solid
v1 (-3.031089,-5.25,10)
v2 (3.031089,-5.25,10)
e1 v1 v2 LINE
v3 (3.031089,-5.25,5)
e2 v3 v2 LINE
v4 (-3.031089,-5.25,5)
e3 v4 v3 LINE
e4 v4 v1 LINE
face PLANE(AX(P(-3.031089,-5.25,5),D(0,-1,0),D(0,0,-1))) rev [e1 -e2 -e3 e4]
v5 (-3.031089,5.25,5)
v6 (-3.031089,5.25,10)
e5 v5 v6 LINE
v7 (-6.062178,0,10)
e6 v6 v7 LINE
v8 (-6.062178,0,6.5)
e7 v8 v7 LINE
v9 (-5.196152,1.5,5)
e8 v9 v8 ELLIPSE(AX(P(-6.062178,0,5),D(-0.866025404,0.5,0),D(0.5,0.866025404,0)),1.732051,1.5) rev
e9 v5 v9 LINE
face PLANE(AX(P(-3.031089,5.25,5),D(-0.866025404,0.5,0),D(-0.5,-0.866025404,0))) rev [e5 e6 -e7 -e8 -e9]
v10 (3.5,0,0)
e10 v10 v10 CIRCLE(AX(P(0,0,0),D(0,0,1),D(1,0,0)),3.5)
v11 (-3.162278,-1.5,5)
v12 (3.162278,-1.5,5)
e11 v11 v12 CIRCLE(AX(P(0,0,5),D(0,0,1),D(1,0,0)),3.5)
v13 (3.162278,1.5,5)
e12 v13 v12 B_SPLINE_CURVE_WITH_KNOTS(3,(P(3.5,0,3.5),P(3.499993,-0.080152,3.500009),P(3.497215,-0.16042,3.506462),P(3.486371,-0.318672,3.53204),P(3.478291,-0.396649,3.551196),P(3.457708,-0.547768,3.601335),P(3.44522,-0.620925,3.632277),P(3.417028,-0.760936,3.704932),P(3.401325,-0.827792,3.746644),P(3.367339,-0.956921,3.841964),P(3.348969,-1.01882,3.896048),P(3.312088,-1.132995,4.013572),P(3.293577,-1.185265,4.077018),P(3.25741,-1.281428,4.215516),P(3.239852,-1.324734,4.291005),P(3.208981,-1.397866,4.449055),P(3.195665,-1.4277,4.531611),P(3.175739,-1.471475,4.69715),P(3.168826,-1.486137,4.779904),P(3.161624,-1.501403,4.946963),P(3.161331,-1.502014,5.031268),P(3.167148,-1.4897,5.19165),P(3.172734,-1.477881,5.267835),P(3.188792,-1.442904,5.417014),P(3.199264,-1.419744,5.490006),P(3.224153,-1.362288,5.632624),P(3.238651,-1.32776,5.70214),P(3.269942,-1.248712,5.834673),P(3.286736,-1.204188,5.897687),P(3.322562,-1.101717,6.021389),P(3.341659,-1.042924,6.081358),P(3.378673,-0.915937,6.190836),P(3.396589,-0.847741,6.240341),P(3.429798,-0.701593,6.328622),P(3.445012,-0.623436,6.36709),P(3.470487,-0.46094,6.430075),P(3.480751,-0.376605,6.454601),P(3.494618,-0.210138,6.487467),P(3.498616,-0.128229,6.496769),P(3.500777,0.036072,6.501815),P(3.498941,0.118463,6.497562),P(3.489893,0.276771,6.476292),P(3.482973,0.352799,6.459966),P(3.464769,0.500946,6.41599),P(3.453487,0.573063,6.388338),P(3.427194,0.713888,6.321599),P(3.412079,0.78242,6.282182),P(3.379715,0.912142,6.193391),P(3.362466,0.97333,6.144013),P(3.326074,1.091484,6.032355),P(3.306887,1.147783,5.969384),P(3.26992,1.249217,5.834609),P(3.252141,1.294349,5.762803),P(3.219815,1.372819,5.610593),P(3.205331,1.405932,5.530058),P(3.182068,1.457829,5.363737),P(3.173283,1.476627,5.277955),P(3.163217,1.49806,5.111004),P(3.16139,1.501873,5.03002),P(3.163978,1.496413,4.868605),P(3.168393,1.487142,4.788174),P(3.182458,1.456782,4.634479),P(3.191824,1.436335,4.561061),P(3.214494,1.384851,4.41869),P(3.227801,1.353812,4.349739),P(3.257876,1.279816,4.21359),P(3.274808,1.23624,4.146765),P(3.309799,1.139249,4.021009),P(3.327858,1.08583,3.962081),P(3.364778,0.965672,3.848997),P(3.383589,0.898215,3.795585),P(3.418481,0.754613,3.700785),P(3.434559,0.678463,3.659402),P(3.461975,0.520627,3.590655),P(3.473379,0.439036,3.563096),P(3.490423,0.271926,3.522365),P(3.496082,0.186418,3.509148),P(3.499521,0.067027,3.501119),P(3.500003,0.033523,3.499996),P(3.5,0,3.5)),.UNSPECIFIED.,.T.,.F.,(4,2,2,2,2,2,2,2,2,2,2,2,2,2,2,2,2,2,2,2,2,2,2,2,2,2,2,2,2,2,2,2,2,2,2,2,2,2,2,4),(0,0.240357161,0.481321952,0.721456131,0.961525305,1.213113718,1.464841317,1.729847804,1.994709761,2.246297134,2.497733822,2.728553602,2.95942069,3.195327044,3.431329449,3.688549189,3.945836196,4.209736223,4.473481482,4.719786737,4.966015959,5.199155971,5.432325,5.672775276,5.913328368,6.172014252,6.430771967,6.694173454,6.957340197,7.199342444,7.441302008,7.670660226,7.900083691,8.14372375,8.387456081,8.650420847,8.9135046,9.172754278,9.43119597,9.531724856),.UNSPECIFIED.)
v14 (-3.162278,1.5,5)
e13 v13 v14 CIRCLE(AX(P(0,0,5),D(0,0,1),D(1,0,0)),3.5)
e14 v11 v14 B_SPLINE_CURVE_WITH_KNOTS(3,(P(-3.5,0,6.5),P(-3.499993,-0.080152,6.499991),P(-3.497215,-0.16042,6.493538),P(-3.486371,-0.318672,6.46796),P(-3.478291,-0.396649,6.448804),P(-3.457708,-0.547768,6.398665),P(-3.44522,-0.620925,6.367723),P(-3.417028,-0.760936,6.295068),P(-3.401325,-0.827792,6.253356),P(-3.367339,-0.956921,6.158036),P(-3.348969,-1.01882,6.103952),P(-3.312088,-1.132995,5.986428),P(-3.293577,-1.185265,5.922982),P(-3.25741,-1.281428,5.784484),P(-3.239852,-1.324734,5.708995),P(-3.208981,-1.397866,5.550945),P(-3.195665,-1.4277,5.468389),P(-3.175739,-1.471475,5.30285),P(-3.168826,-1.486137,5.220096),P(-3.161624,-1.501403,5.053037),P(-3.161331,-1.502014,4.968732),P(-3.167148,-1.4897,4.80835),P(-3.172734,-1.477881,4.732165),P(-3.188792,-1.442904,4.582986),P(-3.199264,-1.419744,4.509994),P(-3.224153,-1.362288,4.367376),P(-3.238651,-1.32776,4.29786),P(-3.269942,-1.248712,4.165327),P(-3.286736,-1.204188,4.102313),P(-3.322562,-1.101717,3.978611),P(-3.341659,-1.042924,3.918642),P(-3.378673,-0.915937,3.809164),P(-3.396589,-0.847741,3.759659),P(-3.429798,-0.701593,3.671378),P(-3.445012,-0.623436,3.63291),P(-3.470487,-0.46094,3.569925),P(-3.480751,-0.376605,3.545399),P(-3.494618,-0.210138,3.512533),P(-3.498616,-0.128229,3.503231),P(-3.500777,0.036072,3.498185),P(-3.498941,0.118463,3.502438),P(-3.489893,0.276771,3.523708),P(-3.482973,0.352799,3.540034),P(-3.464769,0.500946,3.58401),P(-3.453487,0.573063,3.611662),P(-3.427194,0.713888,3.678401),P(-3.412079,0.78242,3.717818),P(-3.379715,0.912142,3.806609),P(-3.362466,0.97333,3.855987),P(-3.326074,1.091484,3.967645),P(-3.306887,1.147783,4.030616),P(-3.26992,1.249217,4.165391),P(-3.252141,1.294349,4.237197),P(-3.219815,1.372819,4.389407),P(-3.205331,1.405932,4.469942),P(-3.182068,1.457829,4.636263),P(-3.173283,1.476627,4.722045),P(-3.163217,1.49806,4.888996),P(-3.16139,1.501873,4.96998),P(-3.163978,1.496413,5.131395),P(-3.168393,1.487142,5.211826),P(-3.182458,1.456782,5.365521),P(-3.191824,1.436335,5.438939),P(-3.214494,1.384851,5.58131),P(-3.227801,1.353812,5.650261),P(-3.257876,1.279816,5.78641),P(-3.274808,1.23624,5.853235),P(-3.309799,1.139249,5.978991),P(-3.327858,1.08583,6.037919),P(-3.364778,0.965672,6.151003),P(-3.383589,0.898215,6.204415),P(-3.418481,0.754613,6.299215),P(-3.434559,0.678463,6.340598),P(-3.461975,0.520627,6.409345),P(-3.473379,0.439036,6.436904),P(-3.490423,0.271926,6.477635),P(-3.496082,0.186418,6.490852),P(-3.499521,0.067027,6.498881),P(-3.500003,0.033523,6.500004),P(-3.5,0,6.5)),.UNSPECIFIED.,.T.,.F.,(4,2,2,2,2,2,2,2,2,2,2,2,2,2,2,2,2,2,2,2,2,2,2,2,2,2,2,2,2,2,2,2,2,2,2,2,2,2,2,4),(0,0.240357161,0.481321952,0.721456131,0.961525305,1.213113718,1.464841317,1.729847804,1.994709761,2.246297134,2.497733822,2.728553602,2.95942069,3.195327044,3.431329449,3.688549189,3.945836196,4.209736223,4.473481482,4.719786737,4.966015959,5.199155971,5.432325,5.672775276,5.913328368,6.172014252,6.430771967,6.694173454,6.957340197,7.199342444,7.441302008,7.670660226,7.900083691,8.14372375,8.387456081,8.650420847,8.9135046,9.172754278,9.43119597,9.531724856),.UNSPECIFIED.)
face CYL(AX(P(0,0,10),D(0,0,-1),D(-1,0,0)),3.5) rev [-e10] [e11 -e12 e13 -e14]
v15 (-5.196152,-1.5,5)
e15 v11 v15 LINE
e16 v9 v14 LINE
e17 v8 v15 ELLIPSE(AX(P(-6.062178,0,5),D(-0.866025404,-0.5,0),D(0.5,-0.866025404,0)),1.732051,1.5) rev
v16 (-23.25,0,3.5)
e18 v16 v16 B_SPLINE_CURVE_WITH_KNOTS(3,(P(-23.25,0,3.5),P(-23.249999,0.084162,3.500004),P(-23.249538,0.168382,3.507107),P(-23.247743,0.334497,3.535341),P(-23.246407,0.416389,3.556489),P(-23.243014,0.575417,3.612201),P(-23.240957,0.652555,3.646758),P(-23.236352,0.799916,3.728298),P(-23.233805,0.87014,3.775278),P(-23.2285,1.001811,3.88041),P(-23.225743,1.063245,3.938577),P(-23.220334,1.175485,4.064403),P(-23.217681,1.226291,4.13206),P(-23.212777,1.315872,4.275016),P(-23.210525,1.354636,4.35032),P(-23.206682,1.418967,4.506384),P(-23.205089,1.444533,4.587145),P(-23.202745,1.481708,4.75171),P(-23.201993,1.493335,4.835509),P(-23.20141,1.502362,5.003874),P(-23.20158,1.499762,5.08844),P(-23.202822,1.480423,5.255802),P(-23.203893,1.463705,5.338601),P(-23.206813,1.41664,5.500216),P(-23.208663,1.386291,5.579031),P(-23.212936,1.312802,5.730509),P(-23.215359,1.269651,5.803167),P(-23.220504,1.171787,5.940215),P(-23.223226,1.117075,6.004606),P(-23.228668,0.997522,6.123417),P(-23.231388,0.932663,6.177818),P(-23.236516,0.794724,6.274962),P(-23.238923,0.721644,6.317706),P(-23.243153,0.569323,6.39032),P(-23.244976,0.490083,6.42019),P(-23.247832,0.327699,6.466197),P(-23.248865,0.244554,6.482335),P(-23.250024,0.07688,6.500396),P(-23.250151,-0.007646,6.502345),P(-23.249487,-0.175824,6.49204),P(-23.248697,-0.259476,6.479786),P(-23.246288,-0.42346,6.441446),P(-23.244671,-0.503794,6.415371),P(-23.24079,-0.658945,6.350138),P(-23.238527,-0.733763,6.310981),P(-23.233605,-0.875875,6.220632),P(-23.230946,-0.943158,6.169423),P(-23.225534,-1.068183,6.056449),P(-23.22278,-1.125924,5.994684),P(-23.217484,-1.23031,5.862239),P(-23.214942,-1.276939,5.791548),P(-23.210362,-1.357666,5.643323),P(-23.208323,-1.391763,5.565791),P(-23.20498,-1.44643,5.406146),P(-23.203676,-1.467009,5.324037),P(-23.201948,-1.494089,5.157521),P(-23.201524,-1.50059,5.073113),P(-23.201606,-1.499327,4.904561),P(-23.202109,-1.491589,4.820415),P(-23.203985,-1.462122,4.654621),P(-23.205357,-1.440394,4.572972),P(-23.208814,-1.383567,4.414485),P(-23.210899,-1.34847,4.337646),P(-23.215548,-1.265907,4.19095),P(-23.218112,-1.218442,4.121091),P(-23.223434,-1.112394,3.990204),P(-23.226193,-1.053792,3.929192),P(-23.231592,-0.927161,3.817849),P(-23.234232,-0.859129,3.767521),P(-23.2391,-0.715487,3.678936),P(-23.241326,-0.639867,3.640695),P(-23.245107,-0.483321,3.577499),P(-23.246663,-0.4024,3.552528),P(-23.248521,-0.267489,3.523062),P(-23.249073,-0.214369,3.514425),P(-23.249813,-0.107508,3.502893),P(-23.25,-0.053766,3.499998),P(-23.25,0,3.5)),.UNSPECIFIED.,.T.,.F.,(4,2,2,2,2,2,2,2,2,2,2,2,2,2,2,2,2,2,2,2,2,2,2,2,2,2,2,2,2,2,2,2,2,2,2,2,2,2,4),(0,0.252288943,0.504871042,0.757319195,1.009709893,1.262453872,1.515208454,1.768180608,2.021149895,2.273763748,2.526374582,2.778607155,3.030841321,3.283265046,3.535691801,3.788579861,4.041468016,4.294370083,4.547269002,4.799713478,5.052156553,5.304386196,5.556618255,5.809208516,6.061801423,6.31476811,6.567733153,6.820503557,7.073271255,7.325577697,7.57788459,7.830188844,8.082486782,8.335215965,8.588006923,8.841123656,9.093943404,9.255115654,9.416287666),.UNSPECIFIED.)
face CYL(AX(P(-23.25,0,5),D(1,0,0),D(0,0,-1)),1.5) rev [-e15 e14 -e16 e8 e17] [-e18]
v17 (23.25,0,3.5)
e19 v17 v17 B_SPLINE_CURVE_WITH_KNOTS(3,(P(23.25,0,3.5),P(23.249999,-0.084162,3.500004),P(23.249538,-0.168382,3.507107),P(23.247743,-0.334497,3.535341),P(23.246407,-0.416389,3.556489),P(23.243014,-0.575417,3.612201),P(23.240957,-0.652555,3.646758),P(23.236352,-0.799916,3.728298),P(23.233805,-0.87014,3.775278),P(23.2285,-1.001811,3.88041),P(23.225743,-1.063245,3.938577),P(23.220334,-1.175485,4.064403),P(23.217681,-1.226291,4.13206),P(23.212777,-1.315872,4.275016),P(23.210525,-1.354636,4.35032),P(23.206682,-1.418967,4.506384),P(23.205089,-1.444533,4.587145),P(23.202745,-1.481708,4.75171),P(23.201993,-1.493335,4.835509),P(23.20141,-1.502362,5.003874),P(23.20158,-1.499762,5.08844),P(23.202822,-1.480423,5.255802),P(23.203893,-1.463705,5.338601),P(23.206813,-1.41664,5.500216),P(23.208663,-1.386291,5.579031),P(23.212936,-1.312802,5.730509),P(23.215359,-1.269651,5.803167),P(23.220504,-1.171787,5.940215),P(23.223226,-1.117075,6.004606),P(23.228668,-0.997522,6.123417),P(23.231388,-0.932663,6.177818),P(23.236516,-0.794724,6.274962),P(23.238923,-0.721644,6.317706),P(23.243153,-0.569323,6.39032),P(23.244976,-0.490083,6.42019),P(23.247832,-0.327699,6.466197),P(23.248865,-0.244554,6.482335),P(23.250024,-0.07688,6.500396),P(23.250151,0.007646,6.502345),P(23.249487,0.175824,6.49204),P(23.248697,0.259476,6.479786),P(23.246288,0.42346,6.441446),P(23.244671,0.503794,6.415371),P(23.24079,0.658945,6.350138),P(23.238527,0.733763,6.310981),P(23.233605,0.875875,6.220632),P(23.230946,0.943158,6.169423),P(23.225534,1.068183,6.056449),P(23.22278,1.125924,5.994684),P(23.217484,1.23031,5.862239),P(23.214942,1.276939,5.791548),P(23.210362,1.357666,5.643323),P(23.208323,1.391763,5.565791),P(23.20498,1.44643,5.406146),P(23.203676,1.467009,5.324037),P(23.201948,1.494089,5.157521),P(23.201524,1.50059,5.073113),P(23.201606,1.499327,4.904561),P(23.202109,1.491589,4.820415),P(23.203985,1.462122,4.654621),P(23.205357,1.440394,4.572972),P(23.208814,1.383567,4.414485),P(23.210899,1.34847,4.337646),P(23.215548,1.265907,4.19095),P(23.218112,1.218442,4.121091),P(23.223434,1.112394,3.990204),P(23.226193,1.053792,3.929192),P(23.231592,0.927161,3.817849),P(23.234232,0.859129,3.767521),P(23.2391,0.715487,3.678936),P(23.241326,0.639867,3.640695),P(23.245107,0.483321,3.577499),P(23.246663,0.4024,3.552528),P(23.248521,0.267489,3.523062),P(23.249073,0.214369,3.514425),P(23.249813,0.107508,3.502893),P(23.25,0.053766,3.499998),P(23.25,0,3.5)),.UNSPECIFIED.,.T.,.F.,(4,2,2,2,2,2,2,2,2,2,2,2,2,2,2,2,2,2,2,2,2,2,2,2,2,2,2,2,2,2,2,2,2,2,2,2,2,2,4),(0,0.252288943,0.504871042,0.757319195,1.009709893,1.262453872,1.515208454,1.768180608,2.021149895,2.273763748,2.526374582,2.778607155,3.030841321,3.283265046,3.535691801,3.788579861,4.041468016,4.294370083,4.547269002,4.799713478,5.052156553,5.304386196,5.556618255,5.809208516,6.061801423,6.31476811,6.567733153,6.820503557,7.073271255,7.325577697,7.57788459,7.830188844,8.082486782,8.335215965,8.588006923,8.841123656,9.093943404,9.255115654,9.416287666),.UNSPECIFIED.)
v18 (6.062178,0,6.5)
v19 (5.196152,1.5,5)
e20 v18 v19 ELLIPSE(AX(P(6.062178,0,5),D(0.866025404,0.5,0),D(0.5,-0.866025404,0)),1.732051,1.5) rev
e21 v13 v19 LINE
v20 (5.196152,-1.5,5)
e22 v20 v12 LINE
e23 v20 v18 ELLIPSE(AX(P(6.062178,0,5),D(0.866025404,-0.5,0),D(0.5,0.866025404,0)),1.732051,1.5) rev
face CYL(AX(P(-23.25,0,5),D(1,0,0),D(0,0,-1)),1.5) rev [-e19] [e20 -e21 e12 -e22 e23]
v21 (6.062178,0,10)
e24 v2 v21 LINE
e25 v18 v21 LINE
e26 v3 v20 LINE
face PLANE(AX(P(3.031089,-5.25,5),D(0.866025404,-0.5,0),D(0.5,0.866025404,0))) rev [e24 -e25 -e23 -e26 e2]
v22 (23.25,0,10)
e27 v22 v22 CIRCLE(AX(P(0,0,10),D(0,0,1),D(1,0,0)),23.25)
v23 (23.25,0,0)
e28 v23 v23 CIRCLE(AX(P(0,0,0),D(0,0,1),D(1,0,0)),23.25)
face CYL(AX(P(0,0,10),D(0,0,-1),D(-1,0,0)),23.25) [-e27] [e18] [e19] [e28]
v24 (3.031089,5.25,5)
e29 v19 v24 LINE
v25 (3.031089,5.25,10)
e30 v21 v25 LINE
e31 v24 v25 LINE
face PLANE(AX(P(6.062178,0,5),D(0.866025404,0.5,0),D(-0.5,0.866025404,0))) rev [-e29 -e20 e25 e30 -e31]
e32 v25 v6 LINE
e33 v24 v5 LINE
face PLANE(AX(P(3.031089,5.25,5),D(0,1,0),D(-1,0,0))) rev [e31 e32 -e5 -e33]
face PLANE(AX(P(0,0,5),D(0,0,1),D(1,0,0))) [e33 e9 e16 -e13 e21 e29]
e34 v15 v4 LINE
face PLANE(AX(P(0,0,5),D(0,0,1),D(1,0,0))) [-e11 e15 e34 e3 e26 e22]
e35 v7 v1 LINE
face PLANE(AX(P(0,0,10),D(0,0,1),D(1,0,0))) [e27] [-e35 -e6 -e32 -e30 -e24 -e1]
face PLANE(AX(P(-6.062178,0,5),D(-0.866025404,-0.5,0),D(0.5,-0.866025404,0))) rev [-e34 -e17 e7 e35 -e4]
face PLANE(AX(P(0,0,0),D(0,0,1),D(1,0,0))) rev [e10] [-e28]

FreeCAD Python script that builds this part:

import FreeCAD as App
import Part
import Sketcher

V = App.Vector
Q = App.Units.Quantity


def add_polygon(sketch, points):
    """Adds a closed chain of lines whose ends are joined by coincident constraints."""
    first, n = sketch.GeometryCount, len(points)
    for a, b in zip(points, points[1:] + points[:1]):
        sketch.addGeometry(Part.LineSegment(App.Vector(*a, 0), App.Vector(*b, 0)), False)
    for i in range(n):
        sketch.addConstraint(Sketcher.Constraint("Coincident", first + i, 2, first + (i + 1) % n, 1))

doc = App.newDocument("Part")
body = doc.addObject("PartDesign::Body", "Body")

sketch1 = body.newObject("Sketcher::SketchObject", "Sketch")
sketch1.AttachmentSupport = (doc.getObject("XY_Plane"), [""])
sketch1.MapMode = "FlatFace"
sketch1.addGeometry(Part.Circle(V(0, 0, 0), V(0, 0, 1), 23.2), False)
sketch1.addGeometry(Part.Circle(V(0, 0, 0), V(0, 0, 1), 3.5), False)
sketch1.addConstraint(Sketcher.Constraint("Coincident", 0, 3, -1, 1))
sketch1.addConstraint(Sketcher.Constraint("Coincident", 1, 3, -1, 1))
sketch1.addConstraint(Sketcher.Constraint("Diameter", 1, 7.0))
sketch1.addConstraint(Sketcher.Constraint("Diameter", 0, 46.5))
pad1 = body.newObject("PartDesign::Pad", "Pad")
pad1.Profile = sketch1
pad1.Length = 10

sketch2 = body.newObject("Sketcher::SketchObject", "Sketch001")
sketch2.AttachmentSupport = (doc.getObject("YZ_Plane"), [""])
sketch2.MapMode = "FlatFace"
sketch2.addGeometry(Part.Circle(V(0, 5, 0), V(0, 0, 1), 1.5), False)
sketch2.addConstraint(Sketcher.Constraint("PointOnObject", 0, 3, -2))
sketch2.addConstraint(Sketcher.Constraint("Diameter", 0, 3.0))
sketch2.addConstraint(Sketcher.Constraint("DistanceY", -1, 1, 0, 3, 5.0))
pocket1 = body.newObject("PartDesign::Pocket", "Pocket")
pocket1.Profile = sketch2
pocket1.Type = "ThroughAll"
pocket1.Midplane = True

sketch3 = body.newObject("Sketcher::SketchObject", "Sketch002")
sketch3.AttachmentSupport = (doc.getObject("XY_Plane"), [""])
sketch3.MapMode = "FlatFace"
sketch3.AttachmentOffset = App.Placement(V(0, 0, 10), App.Rotation())
add_polygon(sketch3, [(3, 5), (-3, 5), (-6, 0), (-3, -5), (3, -5), (6, 0)])
sketch3.addConstraint(Sketcher.Constraint("Horizontal", 0))
sketch3.addConstraint(Sketcher.Constraint("Horizontal", 3))
sketch3.addConstraint(Sketcher.Constraint("Symmetric", 0, 2, 3, 2, -1, 1))
sketch3.addConstraint(Sketcher.Constraint("Symmetric", 1, 2, 4, 2, -1, 1))
sketch3.addConstraint(Sketcher.Constraint("PointOnObject", 1, 2, -1))
sketch3.addConstraint(Sketcher.Constraint("Parallel", 2, 5))
sketch3.addConstraint(Sketcher.Constraint("Vertical", 0, 2, 2, 2))
sketch3.addConstraint(Sketcher.Constraint("Angle", 1, Q("-120 deg")))
sketch3.addConstraint(Sketcher.Constraint("DistanceY", 2, 2, 0, 2, 10.5))
sketch3.addConstraint(Sketcher.Constraint("DistanceX", 0, 2, 0, 1, 6.062178))
pocket2 = body.newObject("PartDesign::Pocket", "Pocket001")
pocket2.Profile = sketch3
pocket2.Length = 5

doc.recompute()
